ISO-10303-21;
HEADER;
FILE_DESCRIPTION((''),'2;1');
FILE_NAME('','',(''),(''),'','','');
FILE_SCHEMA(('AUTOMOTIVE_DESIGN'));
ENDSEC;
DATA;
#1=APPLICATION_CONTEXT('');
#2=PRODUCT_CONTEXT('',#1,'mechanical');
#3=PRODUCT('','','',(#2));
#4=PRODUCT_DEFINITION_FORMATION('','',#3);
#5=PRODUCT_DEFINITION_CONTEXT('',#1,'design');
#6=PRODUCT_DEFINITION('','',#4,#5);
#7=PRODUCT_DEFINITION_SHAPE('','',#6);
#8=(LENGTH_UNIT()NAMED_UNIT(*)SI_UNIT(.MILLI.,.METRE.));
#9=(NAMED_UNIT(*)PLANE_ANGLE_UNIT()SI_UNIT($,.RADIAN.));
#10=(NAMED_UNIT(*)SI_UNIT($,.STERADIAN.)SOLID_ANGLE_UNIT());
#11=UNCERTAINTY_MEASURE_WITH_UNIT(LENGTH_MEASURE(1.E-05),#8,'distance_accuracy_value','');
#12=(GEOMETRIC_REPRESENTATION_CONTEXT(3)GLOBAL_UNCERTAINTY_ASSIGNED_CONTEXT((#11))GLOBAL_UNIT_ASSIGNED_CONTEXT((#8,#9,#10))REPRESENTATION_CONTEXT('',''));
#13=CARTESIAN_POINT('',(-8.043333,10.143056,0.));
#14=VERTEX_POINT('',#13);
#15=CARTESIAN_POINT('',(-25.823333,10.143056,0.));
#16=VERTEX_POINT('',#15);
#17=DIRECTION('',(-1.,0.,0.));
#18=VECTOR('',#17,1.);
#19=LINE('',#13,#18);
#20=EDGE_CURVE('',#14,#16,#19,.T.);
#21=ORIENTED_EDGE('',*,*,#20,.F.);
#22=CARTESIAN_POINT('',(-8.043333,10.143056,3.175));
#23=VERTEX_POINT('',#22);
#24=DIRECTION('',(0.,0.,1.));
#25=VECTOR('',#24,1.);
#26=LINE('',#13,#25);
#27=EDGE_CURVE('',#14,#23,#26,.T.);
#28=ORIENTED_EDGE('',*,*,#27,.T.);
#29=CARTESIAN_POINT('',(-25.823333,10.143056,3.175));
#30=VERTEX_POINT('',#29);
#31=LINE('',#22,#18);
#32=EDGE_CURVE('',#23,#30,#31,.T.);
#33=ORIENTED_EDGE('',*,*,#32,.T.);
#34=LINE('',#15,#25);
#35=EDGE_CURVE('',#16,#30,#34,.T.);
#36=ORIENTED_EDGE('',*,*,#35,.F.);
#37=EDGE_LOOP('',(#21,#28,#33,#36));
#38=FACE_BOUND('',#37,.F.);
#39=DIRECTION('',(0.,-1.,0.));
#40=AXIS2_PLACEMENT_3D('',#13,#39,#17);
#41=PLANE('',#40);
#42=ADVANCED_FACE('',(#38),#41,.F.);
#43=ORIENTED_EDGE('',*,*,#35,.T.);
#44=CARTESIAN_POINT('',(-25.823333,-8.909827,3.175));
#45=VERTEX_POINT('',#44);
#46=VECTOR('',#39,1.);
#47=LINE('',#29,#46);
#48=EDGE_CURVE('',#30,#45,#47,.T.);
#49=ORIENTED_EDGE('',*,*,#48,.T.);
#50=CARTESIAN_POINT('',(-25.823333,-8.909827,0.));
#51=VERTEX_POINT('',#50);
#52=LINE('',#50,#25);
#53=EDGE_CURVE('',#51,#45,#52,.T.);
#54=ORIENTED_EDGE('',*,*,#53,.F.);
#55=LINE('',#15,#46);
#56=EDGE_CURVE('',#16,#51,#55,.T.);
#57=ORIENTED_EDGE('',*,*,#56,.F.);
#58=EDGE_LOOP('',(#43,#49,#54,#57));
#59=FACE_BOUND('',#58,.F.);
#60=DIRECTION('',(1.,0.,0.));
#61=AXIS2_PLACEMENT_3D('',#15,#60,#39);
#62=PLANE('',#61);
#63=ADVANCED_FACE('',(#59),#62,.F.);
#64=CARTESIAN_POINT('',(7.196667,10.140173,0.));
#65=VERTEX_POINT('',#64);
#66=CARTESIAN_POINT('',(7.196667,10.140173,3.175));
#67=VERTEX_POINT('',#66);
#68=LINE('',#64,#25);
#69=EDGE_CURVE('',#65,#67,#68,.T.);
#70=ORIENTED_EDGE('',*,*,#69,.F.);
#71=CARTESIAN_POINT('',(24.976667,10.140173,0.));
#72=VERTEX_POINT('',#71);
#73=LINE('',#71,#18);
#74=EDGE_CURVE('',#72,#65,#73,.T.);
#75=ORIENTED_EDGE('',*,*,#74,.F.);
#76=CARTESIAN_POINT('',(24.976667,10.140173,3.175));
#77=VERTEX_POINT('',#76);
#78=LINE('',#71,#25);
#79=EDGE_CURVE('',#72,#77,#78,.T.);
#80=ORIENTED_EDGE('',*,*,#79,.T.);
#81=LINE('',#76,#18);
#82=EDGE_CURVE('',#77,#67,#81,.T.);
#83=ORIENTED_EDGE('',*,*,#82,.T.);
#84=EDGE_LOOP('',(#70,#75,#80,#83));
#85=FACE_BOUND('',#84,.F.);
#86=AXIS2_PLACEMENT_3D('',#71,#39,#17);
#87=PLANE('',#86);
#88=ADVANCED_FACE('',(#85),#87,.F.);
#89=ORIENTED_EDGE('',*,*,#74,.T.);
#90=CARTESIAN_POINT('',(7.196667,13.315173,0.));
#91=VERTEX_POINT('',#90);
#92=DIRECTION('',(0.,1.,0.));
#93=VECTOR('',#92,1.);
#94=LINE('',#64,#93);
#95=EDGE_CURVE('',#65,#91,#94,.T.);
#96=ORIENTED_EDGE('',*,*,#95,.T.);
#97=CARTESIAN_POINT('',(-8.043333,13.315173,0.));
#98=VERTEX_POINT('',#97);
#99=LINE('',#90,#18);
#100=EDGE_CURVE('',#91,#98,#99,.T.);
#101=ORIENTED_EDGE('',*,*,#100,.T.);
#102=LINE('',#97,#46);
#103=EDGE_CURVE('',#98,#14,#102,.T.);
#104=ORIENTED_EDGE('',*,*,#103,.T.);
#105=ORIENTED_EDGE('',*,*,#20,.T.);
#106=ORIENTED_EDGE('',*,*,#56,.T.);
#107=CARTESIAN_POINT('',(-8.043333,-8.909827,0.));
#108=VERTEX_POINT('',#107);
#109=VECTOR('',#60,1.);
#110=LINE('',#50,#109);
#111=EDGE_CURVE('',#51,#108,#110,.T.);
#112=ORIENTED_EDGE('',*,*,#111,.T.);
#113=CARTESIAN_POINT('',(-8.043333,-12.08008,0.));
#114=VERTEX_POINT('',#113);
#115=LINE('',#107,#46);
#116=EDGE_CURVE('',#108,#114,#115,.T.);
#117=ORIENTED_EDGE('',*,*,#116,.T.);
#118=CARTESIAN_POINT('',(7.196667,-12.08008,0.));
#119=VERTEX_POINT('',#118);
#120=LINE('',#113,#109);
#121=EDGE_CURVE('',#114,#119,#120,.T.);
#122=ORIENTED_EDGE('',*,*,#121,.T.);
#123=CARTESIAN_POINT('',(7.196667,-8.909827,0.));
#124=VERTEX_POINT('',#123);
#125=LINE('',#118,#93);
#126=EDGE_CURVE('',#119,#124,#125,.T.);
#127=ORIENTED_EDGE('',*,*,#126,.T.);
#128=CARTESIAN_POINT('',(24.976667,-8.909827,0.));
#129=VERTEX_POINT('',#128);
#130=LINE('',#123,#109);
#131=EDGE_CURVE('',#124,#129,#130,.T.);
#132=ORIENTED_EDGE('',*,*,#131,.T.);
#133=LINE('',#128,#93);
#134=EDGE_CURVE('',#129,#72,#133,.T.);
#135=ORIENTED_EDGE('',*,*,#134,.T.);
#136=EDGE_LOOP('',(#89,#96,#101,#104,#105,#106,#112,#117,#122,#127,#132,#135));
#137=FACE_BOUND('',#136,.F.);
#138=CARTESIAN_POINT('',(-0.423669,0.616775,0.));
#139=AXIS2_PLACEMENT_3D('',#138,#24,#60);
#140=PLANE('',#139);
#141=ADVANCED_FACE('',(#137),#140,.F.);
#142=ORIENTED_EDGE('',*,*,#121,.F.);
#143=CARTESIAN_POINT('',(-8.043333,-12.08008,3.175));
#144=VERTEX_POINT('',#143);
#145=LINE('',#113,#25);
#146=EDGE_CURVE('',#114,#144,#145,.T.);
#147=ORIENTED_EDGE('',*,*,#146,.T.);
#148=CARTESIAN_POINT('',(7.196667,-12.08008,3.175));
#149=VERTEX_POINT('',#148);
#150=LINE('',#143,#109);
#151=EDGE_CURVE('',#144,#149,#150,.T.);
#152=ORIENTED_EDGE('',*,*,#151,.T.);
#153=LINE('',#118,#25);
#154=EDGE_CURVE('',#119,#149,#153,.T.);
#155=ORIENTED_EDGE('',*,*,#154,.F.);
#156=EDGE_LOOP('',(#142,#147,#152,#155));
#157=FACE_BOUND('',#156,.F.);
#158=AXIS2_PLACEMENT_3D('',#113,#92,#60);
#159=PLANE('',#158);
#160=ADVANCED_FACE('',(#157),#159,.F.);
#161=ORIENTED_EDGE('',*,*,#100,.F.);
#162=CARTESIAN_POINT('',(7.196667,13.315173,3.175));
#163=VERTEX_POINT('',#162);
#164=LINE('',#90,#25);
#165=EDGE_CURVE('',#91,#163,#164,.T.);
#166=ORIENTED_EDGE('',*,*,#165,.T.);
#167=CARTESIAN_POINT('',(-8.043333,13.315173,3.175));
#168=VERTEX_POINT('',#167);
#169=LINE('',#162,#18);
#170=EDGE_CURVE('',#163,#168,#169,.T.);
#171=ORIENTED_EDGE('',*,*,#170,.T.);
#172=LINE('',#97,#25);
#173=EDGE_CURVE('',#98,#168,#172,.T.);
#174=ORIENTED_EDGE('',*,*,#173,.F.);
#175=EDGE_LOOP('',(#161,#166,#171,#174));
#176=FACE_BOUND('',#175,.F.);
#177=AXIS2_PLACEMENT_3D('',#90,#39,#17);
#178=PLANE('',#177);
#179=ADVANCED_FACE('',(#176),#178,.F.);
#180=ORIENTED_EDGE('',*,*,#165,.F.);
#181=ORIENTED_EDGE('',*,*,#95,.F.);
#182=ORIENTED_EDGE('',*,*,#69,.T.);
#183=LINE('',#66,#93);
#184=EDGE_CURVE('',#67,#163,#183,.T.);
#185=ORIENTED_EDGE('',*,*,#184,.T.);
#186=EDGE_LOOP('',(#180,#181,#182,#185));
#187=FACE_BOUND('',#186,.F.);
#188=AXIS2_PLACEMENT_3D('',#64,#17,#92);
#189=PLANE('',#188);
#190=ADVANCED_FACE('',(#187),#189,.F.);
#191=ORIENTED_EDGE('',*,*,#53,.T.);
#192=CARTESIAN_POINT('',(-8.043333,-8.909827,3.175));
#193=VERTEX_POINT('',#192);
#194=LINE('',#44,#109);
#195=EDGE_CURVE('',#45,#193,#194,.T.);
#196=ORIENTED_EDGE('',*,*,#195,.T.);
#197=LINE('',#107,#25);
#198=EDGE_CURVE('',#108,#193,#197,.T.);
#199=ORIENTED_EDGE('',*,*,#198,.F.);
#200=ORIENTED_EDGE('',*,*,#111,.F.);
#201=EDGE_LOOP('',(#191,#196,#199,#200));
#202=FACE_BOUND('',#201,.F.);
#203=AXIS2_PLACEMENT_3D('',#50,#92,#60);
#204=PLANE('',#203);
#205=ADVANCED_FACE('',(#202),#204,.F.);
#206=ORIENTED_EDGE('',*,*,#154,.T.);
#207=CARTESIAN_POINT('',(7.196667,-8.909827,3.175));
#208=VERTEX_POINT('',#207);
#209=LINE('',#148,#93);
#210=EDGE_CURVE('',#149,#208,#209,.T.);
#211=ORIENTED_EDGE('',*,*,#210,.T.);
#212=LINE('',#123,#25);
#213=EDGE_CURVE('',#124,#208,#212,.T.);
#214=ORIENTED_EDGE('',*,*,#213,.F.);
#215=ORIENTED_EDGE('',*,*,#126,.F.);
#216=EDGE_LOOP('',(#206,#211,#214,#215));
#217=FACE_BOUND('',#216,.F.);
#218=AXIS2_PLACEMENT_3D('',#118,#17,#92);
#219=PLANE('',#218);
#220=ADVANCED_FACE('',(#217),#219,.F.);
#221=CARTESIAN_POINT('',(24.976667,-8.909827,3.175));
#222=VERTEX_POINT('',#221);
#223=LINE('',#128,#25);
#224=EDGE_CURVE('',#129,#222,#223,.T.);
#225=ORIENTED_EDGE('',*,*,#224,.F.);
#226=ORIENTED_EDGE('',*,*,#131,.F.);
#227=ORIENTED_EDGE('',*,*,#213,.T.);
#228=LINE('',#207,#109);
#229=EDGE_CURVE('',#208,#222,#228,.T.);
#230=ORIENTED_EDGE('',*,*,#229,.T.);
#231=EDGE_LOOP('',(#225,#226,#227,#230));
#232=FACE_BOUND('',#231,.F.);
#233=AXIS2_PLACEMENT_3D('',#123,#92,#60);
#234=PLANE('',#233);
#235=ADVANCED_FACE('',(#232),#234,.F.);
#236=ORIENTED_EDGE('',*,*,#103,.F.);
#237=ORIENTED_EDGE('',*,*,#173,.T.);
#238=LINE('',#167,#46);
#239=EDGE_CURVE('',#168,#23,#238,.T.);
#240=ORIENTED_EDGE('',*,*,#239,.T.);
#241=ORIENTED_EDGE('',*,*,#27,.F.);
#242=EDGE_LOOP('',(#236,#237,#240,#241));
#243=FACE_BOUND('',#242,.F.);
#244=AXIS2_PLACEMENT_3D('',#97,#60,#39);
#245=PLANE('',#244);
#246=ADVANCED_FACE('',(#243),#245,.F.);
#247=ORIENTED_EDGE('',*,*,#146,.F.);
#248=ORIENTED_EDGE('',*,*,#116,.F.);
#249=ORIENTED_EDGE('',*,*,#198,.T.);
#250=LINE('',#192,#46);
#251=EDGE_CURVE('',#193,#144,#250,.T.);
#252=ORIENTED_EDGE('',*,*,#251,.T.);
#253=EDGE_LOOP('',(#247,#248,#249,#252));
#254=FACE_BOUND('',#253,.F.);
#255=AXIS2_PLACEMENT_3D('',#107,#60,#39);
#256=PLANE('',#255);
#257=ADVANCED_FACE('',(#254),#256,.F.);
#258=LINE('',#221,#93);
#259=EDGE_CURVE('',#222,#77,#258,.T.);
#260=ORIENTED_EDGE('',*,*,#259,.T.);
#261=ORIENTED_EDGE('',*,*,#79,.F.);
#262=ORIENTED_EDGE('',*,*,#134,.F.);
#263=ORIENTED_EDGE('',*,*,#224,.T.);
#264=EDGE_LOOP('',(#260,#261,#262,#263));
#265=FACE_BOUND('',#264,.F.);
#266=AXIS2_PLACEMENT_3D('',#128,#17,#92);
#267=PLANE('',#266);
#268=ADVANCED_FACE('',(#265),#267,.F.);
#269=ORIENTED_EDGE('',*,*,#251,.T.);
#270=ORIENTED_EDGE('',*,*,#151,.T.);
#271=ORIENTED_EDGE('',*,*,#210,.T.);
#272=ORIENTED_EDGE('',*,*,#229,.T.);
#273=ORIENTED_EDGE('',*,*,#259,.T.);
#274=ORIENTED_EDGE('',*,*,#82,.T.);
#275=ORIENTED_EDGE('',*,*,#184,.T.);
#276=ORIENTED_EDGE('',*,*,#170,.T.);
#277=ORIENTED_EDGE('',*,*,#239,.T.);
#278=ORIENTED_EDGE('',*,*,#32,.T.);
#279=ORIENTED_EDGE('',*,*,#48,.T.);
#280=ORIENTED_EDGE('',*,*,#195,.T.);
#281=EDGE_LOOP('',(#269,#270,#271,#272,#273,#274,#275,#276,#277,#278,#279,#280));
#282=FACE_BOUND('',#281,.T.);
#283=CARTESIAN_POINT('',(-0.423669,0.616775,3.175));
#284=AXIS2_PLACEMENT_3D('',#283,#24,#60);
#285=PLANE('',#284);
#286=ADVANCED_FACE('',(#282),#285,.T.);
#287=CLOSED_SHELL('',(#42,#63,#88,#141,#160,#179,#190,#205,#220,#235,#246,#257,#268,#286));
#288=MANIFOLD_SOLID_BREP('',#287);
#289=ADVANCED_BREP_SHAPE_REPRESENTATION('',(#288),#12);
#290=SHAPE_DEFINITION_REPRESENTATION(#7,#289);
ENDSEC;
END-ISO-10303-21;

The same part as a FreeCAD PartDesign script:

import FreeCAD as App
import Part
import Sketcher
Q = App.Units.Quantity

doc = App.newDocument("Part")
body = doc.addObject("PartDesign::Body", "Body")

# Sketch on XY plane
sketch1 = body.newObject("Sketcher::SketchObject", "Sketch")
sketch1.AttachmentSupport = (doc.getObject("XY_Plane"), [""])
sketch1.MapMode = "FlatFace"
sketch1.addGeometry(Part.LineSegment(App.Vector(-8, -12.1, 0), App.Vector(7.2, -12.1, 0)), False)
sketch1.addGeometry(Part.LineSegment(App.Vector(7.2, -12.1, 0), App.Vector(7.2, -8.9, 0)), False)
sketch1.addGeometry(Part.LineSegment(App.Vector(7.2, -8.9, 0), App.Vector(25, -8.9, 0)), False)
sketch1.addGeometry(Part.LineSegment(App.Vector(25, -8.9, 0), App.Vector(25, 10.1, 0)), False)
sketch1.addGeometry(Part.LineSegment(App.Vector(25, 10.1, 0), App.Vector(7.2, 10.1, 0)), False)
sketch1.addGeometry(Part.LineSegment(App.Vector(7.2, 10.1, 0), App.Vector(7.2, 13.3, 0)), False)
sketch1.addGeometry(Part.LineSegment(App.Vector(7.2, 13.3, 0), App.Vector(-8, 13.3, 0)), False)
sketch1.addGeometry(Part.LineSegment(App.Vector(-8, 13.3, 0), App.Vector(-8, 10.1, 0)), False)
sketch1.addGeometry(Part.LineSegment(App.Vector(-8, 10.1, 0), App.Vector(-25.8, 10.1, 0)), False)
sketch1.addGeometry(Part.LineSegment(App.Vector(-25.8, 10.1, 0), App.Vector(-25.8, -8.9, 0)), False)
sketch1.addGeometry(Part.LineSegment(App.Vector(-25.8, -8.9, 0), App.Vector(-8, -8.9, 0)), False)
sketch1.addGeometry(Part.LineSegment(App.Vector(-8, -8.9, 0), App.Vector(-8, -12.1, 0)), False)
sketch1.addConstraint(Sketcher.Constraint("Coincident", 0, 2, 1, 1))
sketch1.addConstraint(Sketcher.Constraint("Coincident", 1, 2, 2, 1))
sketch1.addConstraint(Sketcher.Constraint("Coincident", 2, 2, 3, 1))
sketch1.addConstraint(Sketcher.Constraint("Coincident", 3, 2, 4, 1))
sketch1.addConstraint(Sketcher.Constraint("Coincident", 4, 2, 5, 1))
sketch1.addConstraint(Sketcher.Constraint("Coincident", 5, 2, 6, 1))
sketch1.addConstraint(Sketcher.Constraint("Coincident", 6, 2, 7, 1))
sketch1.addConstraint(Sketcher.Constraint("Coincident", 7, 2, 8, 1))
sketch1.addConstraint(Sketcher.Constraint("Coincident", 8, 2, 9, 1))
sketch1.addConstraint(Sketcher.Constraint("Coincident", 9, 2, 10, 1))
sketch1.addConstraint(Sketcher.Constraint("Coincident", 10, 2, 11, 1))
sketch1.addConstraint(Sketcher.Constraint("Coincident", 11, 2, 0, 1))
sketch1.addConstraint(Sketcher.Constraint("Horizontal", 0))
sketch1.addConstraint(Sketcher.Constraint("Vertical", 1))
sketch1.addConstraint(Sketcher.Constraint("Horizontal", 2))
sketch1.addConstraint(Sketcher.Constraint("Vertical", 3))
sketch1.addConstraint(Sketcher.Constraint("Horizontal", 4))
sketch1.addConstraint(Sketcher.Constraint("Vertical", 5))
sketch1.addConstraint(Sketcher.Constraint("Horizontal", 6))
sketch1.addConstraint(Sketcher.Constraint("Vertical", 7))
sketch1.addConstraint(Sketcher.Constraint("Horizontal", 8))
sketch1.addConstraint(Sketcher.Constraint("Vertical", 9))
sketch1.addConstraint(Sketcher.Constraint("Horizontal", 10))
sketch1.addConstraint(Sketcher.Constraint("Vertical", 11))
sketch1.addConstraint(Sketcher.Constraint("Horizontal", 2, 2, 9, 2))
sketch1.addConstraint(Sketcher.Constraint("Vertical", 1, 2, 4, 2))
sketch1.addConstraint(Sketcher.Constraint("Vertical", 7, 2, 10, 2))
sketch1.addConstraint(Sketcher.Constraint("Equal", 4, 8))
sketch1.addConstraint(Sketcher.Constraint("DistanceX", 0, 1, 0, 2, Q("0.6 in")))
sketch1.addConstraint(Sketcher.Constraint("DistanceX", 2, 1, 2, 2, Q("0.7 in")))
sketch1.addConstraint(Sketcher.Constraint("DistanceY", 3, 1, 3, 2, Q("0.75 in")))
sketch1.addConstraint(Sketcher.Constraint("DistanceY", 5, 1, 5, 2, Q("0.125 in")))
sketch1.addConstraint(Sketcher.Constraint("DistanceY", 1, 1, 1, 2, 3.170253))
sketch1.addConstraint(Sketcher.Constraint("DistanceY", 7, 2, 7, 1, 3.172117))
sketch1.addConstraint(Sketcher.Constraint("DistanceY", 0, 2, -1, 1, 12.08008))
sketch1.addConstraint(Sketcher.Constraint("DistanceX", -1, 1, 0, 2, 7.196667))
pad1 = body.newObject("PartDesign::Pad", "Pad")
pad1.Profile = sketch1
pad1.Length = Q("0.125 in")

doc.recompute()
